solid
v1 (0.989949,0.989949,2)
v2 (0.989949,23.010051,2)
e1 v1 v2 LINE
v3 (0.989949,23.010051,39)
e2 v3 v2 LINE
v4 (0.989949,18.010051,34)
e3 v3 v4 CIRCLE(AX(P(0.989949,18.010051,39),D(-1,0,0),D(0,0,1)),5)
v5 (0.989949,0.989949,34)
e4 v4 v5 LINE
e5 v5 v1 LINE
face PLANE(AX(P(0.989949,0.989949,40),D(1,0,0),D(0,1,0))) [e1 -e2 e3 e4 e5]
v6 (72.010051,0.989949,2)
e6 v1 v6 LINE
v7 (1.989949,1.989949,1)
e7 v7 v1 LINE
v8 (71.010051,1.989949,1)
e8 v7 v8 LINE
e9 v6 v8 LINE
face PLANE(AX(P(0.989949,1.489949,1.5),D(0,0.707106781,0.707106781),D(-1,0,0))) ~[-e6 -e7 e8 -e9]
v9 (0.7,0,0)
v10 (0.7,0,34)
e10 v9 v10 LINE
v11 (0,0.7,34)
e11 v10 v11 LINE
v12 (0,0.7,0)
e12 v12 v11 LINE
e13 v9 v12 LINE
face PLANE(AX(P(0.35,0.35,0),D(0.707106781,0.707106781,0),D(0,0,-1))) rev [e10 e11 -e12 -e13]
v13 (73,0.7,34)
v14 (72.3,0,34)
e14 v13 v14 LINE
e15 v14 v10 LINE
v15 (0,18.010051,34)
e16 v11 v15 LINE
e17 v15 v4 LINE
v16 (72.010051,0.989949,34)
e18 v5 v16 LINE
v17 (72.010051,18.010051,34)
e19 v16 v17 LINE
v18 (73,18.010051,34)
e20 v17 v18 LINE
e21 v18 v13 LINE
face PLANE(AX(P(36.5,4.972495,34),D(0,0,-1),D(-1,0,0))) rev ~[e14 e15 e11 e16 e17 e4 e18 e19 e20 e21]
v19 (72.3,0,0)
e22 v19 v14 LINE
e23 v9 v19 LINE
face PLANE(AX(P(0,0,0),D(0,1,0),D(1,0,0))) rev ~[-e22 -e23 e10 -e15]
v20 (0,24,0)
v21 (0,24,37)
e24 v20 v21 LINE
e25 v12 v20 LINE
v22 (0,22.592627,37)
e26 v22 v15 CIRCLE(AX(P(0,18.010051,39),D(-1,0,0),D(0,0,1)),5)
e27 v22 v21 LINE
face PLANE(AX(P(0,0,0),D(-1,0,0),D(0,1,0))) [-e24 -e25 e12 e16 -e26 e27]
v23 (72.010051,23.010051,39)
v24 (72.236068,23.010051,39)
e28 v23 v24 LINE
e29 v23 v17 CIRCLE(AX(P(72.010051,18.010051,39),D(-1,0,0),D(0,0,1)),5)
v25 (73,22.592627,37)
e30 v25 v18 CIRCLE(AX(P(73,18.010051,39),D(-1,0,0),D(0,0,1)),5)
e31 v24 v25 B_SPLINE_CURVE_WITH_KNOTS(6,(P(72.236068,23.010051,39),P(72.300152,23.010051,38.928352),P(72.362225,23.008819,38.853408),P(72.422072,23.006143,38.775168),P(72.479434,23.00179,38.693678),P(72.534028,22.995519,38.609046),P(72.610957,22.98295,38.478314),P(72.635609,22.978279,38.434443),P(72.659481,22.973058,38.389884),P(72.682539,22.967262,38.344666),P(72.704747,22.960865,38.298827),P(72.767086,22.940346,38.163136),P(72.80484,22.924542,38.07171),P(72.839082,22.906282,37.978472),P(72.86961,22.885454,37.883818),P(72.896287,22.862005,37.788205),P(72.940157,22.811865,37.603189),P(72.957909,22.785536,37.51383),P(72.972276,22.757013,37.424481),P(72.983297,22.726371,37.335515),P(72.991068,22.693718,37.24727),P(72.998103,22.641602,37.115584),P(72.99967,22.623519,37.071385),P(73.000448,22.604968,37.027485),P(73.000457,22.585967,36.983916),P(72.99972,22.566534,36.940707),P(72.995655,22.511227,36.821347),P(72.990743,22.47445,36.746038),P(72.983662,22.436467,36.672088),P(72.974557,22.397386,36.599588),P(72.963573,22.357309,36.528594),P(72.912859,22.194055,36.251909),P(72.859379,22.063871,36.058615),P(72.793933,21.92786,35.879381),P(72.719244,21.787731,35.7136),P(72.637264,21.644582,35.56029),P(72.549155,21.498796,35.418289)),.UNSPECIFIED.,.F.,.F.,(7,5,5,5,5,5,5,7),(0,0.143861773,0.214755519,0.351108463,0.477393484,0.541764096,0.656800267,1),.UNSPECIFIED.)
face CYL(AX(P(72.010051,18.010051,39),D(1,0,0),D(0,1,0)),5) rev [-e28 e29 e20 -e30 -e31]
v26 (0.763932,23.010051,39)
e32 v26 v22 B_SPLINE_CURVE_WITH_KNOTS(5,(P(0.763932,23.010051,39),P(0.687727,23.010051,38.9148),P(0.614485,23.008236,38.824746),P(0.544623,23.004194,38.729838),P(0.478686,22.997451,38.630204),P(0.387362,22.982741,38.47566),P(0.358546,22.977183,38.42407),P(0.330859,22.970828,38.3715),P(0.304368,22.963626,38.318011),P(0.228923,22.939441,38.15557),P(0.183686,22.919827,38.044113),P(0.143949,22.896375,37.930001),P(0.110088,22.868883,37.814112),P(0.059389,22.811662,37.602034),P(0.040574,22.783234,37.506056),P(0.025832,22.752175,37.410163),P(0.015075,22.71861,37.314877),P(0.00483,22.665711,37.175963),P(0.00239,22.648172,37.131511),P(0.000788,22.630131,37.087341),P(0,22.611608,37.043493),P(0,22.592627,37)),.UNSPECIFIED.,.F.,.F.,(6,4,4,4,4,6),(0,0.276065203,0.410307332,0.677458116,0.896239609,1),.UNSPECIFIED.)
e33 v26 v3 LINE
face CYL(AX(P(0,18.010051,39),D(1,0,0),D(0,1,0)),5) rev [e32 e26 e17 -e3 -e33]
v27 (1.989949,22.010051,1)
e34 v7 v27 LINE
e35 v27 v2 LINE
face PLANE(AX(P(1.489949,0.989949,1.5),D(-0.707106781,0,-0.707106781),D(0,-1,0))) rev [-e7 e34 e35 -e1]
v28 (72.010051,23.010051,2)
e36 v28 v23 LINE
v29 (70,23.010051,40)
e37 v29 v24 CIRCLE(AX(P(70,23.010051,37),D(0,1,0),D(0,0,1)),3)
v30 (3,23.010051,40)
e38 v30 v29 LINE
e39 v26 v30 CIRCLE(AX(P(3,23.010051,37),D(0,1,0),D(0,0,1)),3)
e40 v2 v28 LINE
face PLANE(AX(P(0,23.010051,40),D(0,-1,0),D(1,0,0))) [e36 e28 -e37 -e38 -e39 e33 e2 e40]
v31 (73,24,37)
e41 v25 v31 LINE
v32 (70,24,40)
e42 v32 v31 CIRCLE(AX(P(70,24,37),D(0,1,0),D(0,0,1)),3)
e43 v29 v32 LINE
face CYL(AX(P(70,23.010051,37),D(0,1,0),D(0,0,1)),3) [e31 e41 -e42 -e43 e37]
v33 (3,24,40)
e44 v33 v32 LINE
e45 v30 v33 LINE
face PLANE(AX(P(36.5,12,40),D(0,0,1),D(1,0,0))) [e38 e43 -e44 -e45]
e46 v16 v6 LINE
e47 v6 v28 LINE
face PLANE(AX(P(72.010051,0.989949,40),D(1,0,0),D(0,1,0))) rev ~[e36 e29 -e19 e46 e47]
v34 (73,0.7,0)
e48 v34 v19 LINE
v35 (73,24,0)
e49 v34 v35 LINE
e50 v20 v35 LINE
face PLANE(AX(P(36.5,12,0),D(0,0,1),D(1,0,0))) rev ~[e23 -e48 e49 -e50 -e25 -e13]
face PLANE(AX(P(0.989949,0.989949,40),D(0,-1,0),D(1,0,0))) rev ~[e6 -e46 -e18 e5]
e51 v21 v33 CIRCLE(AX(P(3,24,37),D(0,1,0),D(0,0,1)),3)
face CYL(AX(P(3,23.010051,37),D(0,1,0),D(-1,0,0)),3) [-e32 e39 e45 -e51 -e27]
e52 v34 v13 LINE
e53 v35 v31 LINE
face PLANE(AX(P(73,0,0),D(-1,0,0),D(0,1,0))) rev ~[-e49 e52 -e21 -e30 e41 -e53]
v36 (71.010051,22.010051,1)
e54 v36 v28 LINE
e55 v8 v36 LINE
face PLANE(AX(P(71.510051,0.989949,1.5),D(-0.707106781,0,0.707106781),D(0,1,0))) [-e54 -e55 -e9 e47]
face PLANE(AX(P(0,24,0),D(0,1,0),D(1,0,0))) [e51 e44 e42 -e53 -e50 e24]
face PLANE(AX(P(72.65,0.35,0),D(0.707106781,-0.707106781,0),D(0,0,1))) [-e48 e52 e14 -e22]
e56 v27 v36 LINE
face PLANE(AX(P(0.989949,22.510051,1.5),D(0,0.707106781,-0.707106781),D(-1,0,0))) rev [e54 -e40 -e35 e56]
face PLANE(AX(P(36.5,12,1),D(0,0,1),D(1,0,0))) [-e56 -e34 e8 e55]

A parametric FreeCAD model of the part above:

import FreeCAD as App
import Part
import Sketcher


def edges_at(feature, points):
    """Names of the edges that pass closest to the given points."""
    edges = feature.Shape.Edges
    near = lambda p: min(range(len(edges)), key=lambda i: edges[i].distToShape(Part.Vertex(*p))[0])
    return sorted({f"Edge{near(p) + 1}" for p in points})

doc = App.newDocument("Part")
params = doc.addObject("Spreadsheet::Sheet", "Params")
for row, (alias, value) in enumerate([
    ("sketch1_width", "73 mm"),
    ("sketch1_height", "24 mm"),
    ("pad1_length", "40 mm"),
    ("pocket1_length", "39 mm"),
    ("sketch3_width", "73 mm"),
    ("pocket2_length", "6 mm"),
    ("chamfer_size", "1 mm"),
    ("fillet_radius", "3 mm"),
    ("fillet2_radius", "5 mm"),
    ("chamfer2_size", "0.7 mm"),
], start=1):
    params.set(f"A{row}", alias)
    params.set(f"B{row}", "=" + value)
    params.setAlias(f"B{row}", alias)

body = doc.addObject("PartDesign::Body", "Body")

# Sketch on XY plane
sketch1 = body.newObject("Sketcher::SketchObject", "Sketch")
sketch1.AttachmentSupport = (doc.getObject("XY_Plane"), [""])
sketch1.MapMode = "FlatFace"
sketch1.addGeometry([
    Part.LineSegment(App.Vector(0, 24, 0), App.Vector(0, 0, 0)),
    Part.LineSegment(App.Vector(0, 0, 0), App.Vector(73, 0, 0)),
    Part.LineSegment(App.Vector(73, 0, 0), App.Vector(73, 24, 0)),
    Part.LineSegment(App.Vector(73, 24, 0), App.Vector(0, 24, 0)),
], False)
sketch1.addConstraint([
    Sketcher.Constraint("Coincident", 0, 2, 1, 1),
    Sketcher.Constraint("Coincident", 1, 2, 2, 1),
    Sketcher.Constraint("Coincident", 2, 2, 3, 1),
    Sketcher.Constraint("Coincident", 3, 2, 0, 1),
    Sketcher.Constraint("Vertical", 0),
    Sketcher.Constraint("Horizontal", 1),
    Sketcher.Constraint("Vertical", 2),
    Sketcher.Constraint("Horizontal", 3),
    Sketcher.Constraint("Coincident", 0, 2, -1, 1),
    Sketcher.Constraint("DistanceX", 1, 1, 1, 2, 73.0),
    Sketcher.Constraint("DistanceY", 0, 2, 0, 1, 24.0),
])
sketch1.setExpression("Constraints[9]", "Params.sketch1_width")
sketch1.setExpression("Constraints[10]", "Params.sketch1_height")
pad1 = body.newObject("PartDesign::Pad", "Pad")
pad1.Profile = sketch1
pad1.setExpression("Length", "Params.pad1_length")

# Sketch on XY plane
sketch2 = body.newObject("Sketcher::SketchObject", "Sketch001")
sketch2.AttachmentSupport = (doc.getObject("XY_Plane"), [""])
sketch2.MapMode = "FlatFace"
sketch2.AttachmentOffset = App.Placement(App.Vector(0, 0, 40), App.Rotation())
sketch2.addGeometry([
    Part.LineSegment(App.Vector(1, 23, 0), App.Vector(1, 1, 0)),
    Part.LineSegment(App.Vector(1, 1, 0), App.Vector(72, 1, 0)),
    Part.LineSegment(App.Vector(72, 1, 0), App.Vector(72, 23, 0)),
    Part.LineSegment(App.Vector(72, 23, 0), App.Vector(1, 23, 0)),
], False)
sketch2.addConstraint([
    Sketcher.Constraint("Coincident", 0, 2, 1, 1),
    Sketcher.Constraint("Coincident", 1, 2, 2, 1),
    Sketcher.Constraint("Coincident", 2, 2, 3, 1),
    Sketcher.Constraint("Coincident", 3, 2, 0, 1),
    Sketcher.Constraint("Vertical", 0),
    Sketcher.Constraint("Horizontal", 1),
    Sketcher.Constraint("Vertical", 2),
    Sketcher.Constraint("Horizontal", 3),
    Sketcher.Constraint("DistanceX", 1, 1, 1, 2, 71.020102),
    Sketcher.Constraint("DistanceY", 0, 2, 0, 1, 22.020102),
    Sketcher.Constraint("DistanceX", -1, 1, 0, 2, 0.989949),
    Sketcher.Constraint("DistanceY", -1, 1, 0, 2, 0.989949),
])
pocket1 = body.newObject("PartDesign::Pocket", "Pocket")
pocket1.Profile = sketch2
pocket1.setExpression("Length", "Params.pocket1_length")

# Sketch on XY plane
sketch3 = body.newObject("Sketcher::SketchObject", "Sketch002")
sketch3.AttachmentSupport = (doc.getObject("XY_Plane"), [""])
sketch3.MapMode = "FlatFace"
sketch3.AttachmentOffset = App.Placement(App.Vector(0, 0, 40), App.Rotation())
sketch3.addGeometry([
    Part.LineSegment(App.Vector(1, 23, 0), App.Vector(0, 23, 0)),  # 0
    Part.LineSegment(App.Vector(0, 23, 0), App.Vector(0, 0, 0)),  # 1
    Part.LineSegment(App.Vector(0, 0, 0), App.Vector(73, 0, 0)),  # 2
    Part.LineSegment(App.Vector(73, 0, 0), App.Vector(73, 23, 0)),  # 3
    Part.LineSegment(App.Vector(73, 23, 0), App.Vector(72, 23, 0)),  # 4
    Part.LineSegment(App.Vector(72, 23, 0), App.Vector(72, 1, 0)),  # 5
    Part.LineSegment(App.Vector(72, 1, 0), App.Vector(1, 1, 0)),  # 6
    Part.LineSegment(App.Vector(1, 1, 0), App.Vector(1, 23, 0)),  # 7
], False)
sketch3.addConstraint([
    Sketcher.Constraint("Coincident", 0, 2, 1, 1),
    Sketcher.Constraint("Coincident", 1, 2, 2, 1),
    Sketcher.Constraint("Coincident", 2, 2, 3, 1),
    Sketcher.Constraint("Coincident", 3, 2, 4, 1),
    Sketcher.Constraint("Coincident", 4, 2, 5, 1),
    Sketcher.Constraint("Coincident", 5, 2, 6, 1),
    Sketcher.Constraint("Coincident", 6, 2, 7, 1),
    Sketcher.Constraint("Coincident", 7, 2, 0, 1),
    Sketcher.Constraint("Horizontal", 0),
    Sketcher.Constraint("Vertical", 1),
    Sketcher.Constraint("Horizontal", 2),
    Sketcher.Constraint("Vertical", 3),
    Sketcher.Constraint("Horizontal", 4),
    Sketcher.Constraint("Vertical", 5),
    Sketcher.Constraint("Horizontal", 6),
    Sketcher.Constraint("Vertical", 7),
    Sketcher.Constraint("Coincident", 1, 2, -1, 1),
    Sketcher.Constraint("Horizontal", 0, 2, 3, 2),
    Sketcher.Constraint("Equal", 0, 4),
    Sketcher.Constraint("DistanceX", 2, 1, 2, 2, 73.0),
    Sketcher.Constraint("DistanceX", 0, 2, 0, 1, 0.989949),
    Sketcher.Constraint("DistanceY", 1, 2, 1, 1, 23.010051),
    Sketcher.Constraint("DistanceY", 5, 2, 5, 1, 22.020102),
])
sketch3.setExpression("Constraints[19]", "Params.sketch3_width")
pocket2 = body.newObject("PartDesign::Pocket", "Pocket001")
pocket2.Profile = sketch3
pocket2.setExpression("Length", "Params.pocket2_length")
doc.recompute()

chamfer = body.newObject("PartDesign::Chamfer", "Chamfer")
chamfer.Base = (pocket2, edges_at(pocket2, [
    (36.5, 23.01, 1),
    (72.01, 12, 1),
    (36.5, 0.99, 1),
    (0.99, 12, 1),
]))
chamfer.setExpression("Size", "Params.chamfer_size")
doc.recompute()

fillet = body.newObject("PartDesign::Fillet", "Fillet")
fillet.Base = (chamfer, edges_at(chamfer, [(0, 23.505, 40), (73, 23.505, 40)]))
fillet.setExpression("Radius", "Params.fillet_radius")
doc.recompute()

fillet2 = body.newObject("PartDesign::Fillet", "Fillet001")
fillet2.Base = (fillet, edges_at(fillet, [(0.495, 23.01, 34), (72.505, 23.01, 34)]))
fillet2.setExpression("Radius", "Params.fillet2_radius")
doc.recompute()

chamfer2 = body.newObject("PartDesign::Chamfer", "Chamfer001")
chamfer2.Base = (fillet2, edges_at(fillet2, [(0, 0, 17), (73, 0, 17)]))
chamfer2.setExpression("Size", "Params.chamfer2_size")

doc.recompute()
